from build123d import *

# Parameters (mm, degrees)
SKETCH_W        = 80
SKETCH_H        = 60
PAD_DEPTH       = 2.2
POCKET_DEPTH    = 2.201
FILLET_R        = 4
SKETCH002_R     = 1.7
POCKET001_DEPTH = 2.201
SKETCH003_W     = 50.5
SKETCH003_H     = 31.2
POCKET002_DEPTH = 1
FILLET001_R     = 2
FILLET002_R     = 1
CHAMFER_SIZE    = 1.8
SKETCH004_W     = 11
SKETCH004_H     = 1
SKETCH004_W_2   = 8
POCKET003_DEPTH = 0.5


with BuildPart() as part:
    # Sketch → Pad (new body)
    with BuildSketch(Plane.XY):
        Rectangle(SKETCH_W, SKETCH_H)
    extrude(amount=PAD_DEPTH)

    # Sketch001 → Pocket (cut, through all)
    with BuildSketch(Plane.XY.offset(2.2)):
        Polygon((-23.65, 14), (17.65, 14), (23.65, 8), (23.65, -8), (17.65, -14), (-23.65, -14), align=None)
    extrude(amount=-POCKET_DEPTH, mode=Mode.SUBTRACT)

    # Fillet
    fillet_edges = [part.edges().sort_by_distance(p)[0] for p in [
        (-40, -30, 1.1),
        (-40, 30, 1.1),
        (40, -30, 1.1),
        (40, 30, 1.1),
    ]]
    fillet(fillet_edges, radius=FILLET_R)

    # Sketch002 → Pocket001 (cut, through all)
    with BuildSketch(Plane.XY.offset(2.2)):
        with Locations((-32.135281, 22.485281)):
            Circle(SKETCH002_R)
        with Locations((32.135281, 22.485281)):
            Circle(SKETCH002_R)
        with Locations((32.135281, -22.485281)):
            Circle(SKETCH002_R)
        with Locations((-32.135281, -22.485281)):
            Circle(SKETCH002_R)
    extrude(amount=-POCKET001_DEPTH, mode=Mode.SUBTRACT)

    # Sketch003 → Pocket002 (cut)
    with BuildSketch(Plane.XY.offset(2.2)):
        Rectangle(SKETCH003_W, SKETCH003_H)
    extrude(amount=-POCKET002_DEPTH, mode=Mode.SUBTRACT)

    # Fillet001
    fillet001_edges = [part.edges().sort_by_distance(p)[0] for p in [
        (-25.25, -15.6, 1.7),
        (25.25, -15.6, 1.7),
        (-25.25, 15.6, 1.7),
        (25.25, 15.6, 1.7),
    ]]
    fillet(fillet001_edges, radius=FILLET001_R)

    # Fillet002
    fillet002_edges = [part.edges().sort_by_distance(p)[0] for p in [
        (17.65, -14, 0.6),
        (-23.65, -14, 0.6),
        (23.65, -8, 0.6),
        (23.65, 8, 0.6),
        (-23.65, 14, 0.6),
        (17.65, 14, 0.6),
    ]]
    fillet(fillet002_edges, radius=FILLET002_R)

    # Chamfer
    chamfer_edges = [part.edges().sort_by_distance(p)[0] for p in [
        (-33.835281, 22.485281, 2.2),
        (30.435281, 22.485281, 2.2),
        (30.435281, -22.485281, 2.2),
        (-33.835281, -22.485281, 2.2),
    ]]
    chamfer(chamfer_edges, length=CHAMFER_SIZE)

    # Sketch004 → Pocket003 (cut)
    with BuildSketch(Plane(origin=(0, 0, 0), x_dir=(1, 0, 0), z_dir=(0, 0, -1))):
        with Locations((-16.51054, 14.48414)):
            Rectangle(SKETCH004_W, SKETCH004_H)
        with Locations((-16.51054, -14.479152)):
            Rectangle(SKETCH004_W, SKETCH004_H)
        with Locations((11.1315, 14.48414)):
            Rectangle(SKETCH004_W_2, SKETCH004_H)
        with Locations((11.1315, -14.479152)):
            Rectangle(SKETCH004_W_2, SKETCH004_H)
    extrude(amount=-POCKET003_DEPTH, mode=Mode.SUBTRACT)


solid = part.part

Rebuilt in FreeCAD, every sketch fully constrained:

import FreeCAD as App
import Part
import Sketcher

V = App.Vector


def edges_at(feature, points):
    """Names of the edges that pass closest to the given points."""
    edges = feature.Shape.Edges
    near = lambda p: min(range(len(edges)), key=lambda i: edges[i].distToShape(Part.Vertex(*p))[0])
    return sorted({f"Edge{near(p) + 1}" for p in points})

doc = App.newDocument("Part")
params = doc.addObject("Spreadsheet::Sheet", "Params")
for row, (alias, value) in enumerate([
    ("sketch1_width", "80 mm"),
    ("sketch1_height", "60 mm"),
    ("pad1_length", "2.2 mm"),
    ("sketch2_height", "28 mm"),
    ("sketch2_height2", "16 mm"),
    ("sketch2_width", "41.3 mm"),
    ("fillet_radius", "4 mm"),
    ("sketch3_diameter", "3.4 mm"),
    ("sketch4_width", "50.5 mm"),
    ("sketch4_height", "31.2 mm"),
    ("pocket3_length", "1 mm"),
    ("fillet2_radius", "2 mm"),
    ("fillet3_radius", "1 mm"),
    ("chamfer_size", "1.8 mm"),
    ("sketch5_width", "11 mm"),
    ("sketch5_width2", "8 mm"),
    ("sketch5_height", "1 mm"),
    ("pocket4_length", "0.5 mm"),
], start=1):
    params.set(f"A{row}", alias)
    params.set(f"B{row}", "=" + value)
    params.setAlias(f"B{row}", alias)

body = doc.addObject("PartDesign::Body", "Body")

sketch1 = doc.addObject("Sketcher::SketchObject", "Sketch")
body.addObject(sketch1)
sketch1.AttachmentSupport = (doc.XY_Plane, [""])
sketch1.MapMode = "FlatFace"
sketch1.addGeometry([
    Part.LineSegment(V(-40, 30, 0), V(-40, -30, 0)),
    Part.LineSegment(V(-40, -30, 0), V(40, -30, 0)),
    Part.LineSegment(V(40, -30, 0), V(40, 30, 0)),
    Part.LineSegment(V(40, 30, 0), V(-40, 30, 0)),
], False)
sketch1.addConstraint([
    Sketcher.Constraint("Coincident", 0, 2, 1, 1),
    Sketcher.Constraint("Coincident", 1, 2, 2, 1),
    Sketcher.Constraint("Coincident", 2, 2, 3, 1),
    Sketcher.Constraint("Coincident", 3, 2, 0, 1),
    Sketcher.Constraint("Vertical", 0),
    Sketcher.Constraint("Horizontal", 1),
    Sketcher.Constraint("Vertical", 2),
    Sketcher.Constraint("Horizontal", 3),
    Sketcher.Constraint("Symmetric", 0, 2, 2, 2, -1, 1),
    Sketcher.Constraint("DistanceX", 1, 1, 1, 2, 80.0),
    Sketcher.Constraint("DistanceY", 0, 2, 0, 1, 60.0),
])
sketch1.setExpression("Constraints[9]", "Params.sketch1_width")
sketch1.setExpression("Constraints[10]", "Params.sketch1_height")
pad1 = doc.addObject("PartDesign::Pad", "Pad")
body.addObject(pad1)
pad1.Profile = sketch1
pad1.setExpression("Length", "Params.pad1_length")

sketch2 = doc.addObject("Sketcher::SketchObject", "Sketch001")
body.addObject(sketch2)
sketch2.AttachmentSupport = (doc.XY_Plane, [""])
sketch2.MapMode = "FlatFace"
sketch2.AttachmentOffset = App.Placement(V(0, 0, 2.2), App.Rotation())
sketch2.addGeometry([
    Part.LineSegment(V(18, 14, 0), V(-24, 14, 0)),
    Part.LineSegment(V(-24, 14, 0), V(-24, -14, 0)),
    Part.LineSegment(V(-24, -14, 0), V(18, -14, 0)),
    Part.LineSegment(V(18, -14, 0), V(24, -8, 0)),
    Part.LineSegment(V(24, -8, 0), V(24, 8, 0)),
    Part.LineSegment(V(24, 8, 0), V(18, 14, 0)),
], False)
sketch2.addConstraint([
    Sketcher.Constraint("Coincident", 0, 2, 1, 1),
    Sketcher.Constraint("Coincident", 1, 2, 2, 1),
    Sketcher.Constraint("Coincident", 2, 2, 3, 1),
    Sketcher.Constraint("Coincident", 3, 2, 4, 1),
    Sketcher.Constraint("Coincident", 4, 2, 5, 1),
    Sketcher.Constraint("Coincident", 5, 2, 0, 1),
    Sketcher.Constraint("Horizontal", 0),
    Sketcher.Constraint("Vertical", 1),
    Sketcher.Constraint("Horizontal", 2),
    Sketcher.Constraint("Vertical", 4),
    Sketcher.Constraint("Symmetric", 2, 2, 5, 2, -1),
    Sketcher.Constraint("Perpendicular", 3, 5),
    Sketcher.Constraint("Equal", 3, 5),
    Sketcher.Constraint("DistanceY", 1, 2, 1, 1, 28.0),
    Sketcher.Constraint("DistanceY", 4, 1, 4, 2, 16.0),
    Sketcher.Constraint("DistanceX", 0, 2, 0, 1, 41.3),
    Sketcher.Constraint("DistanceX", 0, 2, -1, 1, 23.65),
])
sketch2.setExpression("Constraints[13]", "Params.sketch2_height")
sketch2.setExpression("Constraints[14]", "Params.sketch2_height2")
sketch2.setExpression("Constraints[15]", "Params.sketch2_width")
pocket1 = doc.addObject("PartDesign::Pocket", "Pocket")
body.addObject(pocket1)
pocket1.Profile = sketch2
pocket1.Type = "ThroughAll"
doc.recompute()

fillet = doc.addObject("PartDesign::Fillet", "Fillet")
body.addObject(fillet)
fillet.Base = (pocket1, edges_at(pocket1, [
    (-40, -30, 1.1),
    (-40, 30, 1.1),
    (40, -30, 1.1),
    (40, 30, 1.1),
]))
fillet.setExpression("Radius", "Params.fillet_radius")

sketch3 = doc.addObject("Sketcher::SketchObject", "Sketch002")
body.addObject(sketch3)
sketch3.AttachmentSupport = (doc.XY_Plane, [""])
sketch3.MapMode = "FlatFace"
sketch3.AttachmentOffset = App.Placement(V(0, 0, 2.2), App.Rotation())
sketch3.addGeometry([
    Part.Circle(V(-32.1, 22.5, 0), V(0, 0, 1), 1.7),
    Part.Circle(V(32.1, 22.5, 0), V(0, 0, 1), 1.7),
    Part.Circle(V(32.1, -22.5, 0), V(0, 0, 1), 1.7),
    Part.Circle(V(-32.1, -22.5, 0), V(0, 0, 1), 1.7),
], False)
sketch3.addConstraint([
    Sketcher.Constraint("Equal", 0, 1),
    Sketcher.Constraint("Equal", 1, 2),
    Sketcher.Constraint("Equal", 2, 3),
    Sketcher.Constraint("Symmetric", 0, 3, 2, 3, -1, 1),
    Sketcher.Constraint("Symmetric", 1, 3, 3, 3, -1, 1),
    Sketcher.Constraint("Symmetric", 0, 3, 1, 3, -2),
    Sketcher.Constraint("Diameter", 0, 3.4),
    Sketcher.Constraint("DistanceX", 0, 3, -1, 1, 32.135281),
    Sketcher.Constraint("DistanceY", -1, 1, 0, 3, 22.485281),
])
sketch3.setExpression("Constraints[6]", "Params.sketch3_diameter")
pocket2 = doc.addObject("PartDesign::Pocket", "Pocket001")
body.addObject(pocket2)
pocket2.Profile = sketch3
pocket2.Type = "ThroughAll"

sketch4 = doc.addObject("Sketcher::SketchObject", "Sketch003")
body.addObject(sketch4)
sketch4.AttachmentSupport = (doc.XY_Plane, [""])
sketch4.MapMode = "FlatFace"
sketch4.AttachmentOffset = App.Placement(V(0, 0, 2.2), App.Rotation())
sketch4.addGeometry([
    Part.LineSegment(V(-25, 16, 0), V(-25, -16, 0)),
    Part.LineSegment(V(-25, -16, 0), V(25, -16, 0)),
    Part.LineSegment(V(25, -16, 0), V(25, 16, 0)),
    Part.LineSegment(V(25, 16, 0), V(-25, 16, 0)),
], False)
sketch4.addConstraint([
    Sketcher.Constraint("Coincident", 0, 2, 1, 1),
    Sketcher.Constraint("Coincident", 1, 2, 2, 1),
    Sketcher.Constraint("Coincident", 2, 2, 3, 1),
    Sketcher.Constraint("Coincident", 3, 2, 0, 1),
    Sketcher.Constraint("Vertical", 0),
    Sketcher.Constraint("Horizontal", 1),
    Sketcher.Constraint("Vertical", 2),
    Sketcher.Constraint("Horizontal", 3),
    Sketcher.Constraint("Symmetric", 0, 2, 2, 2, -1, 1),
    Sketcher.Constraint("DistanceX", 1, 1, 1, 2, 50.5),
    Sketcher.Constraint("DistanceY", 0, 2, 0, 1, 31.2),
])
sketch4.setExpression("Constraints[9]", "Params.sketch4_width")
sketch4.setExpression("Constraints[10]", "Params.sketch4_height")
pocket3 = doc.addObject("PartDesign::Pocket", "Pocket002")
body.addObject(pocket3)
pocket3.Profile = sketch4
pocket3.setExpression("Length", "Params.pocket3_length")
doc.recompute()

fillet2 = doc.addObject("PartDesign::Fillet", "Fillet001")
body.addObject(fillet2)
fillet2.Base = (pocket3, edges_at(pocket3, [
    (-25.25, -15.6, 1.7),
    (25.25, -15.6, 1.7),
    (-25.25, 15.6, 1.7),
    (25.25, 15.6, 1.7),
]))
fillet2.setExpression("Radius", "Params.fillet2_radius")
doc.recompute()

fillet3 = doc.addObject("PartDesign::Fillet", "Fillet002")
body.addObject(fillet3)
fillet3.Base = (fillet2, edges_at(fillet2, [
    (17.65, -14, 0.6),
    (-23.65, -14, 0.6),
    (23.65, -8, 0.6),
    (23.65, 8, 0.6),
    (-23.65, 14, 0.6),
    (17.65, 14, 0.6),
]))
fillet3.setExpression("Radius", "Params.fillet3_radius")
doc.recompute()

chamfer = doc.addObject("PartDesign::Chamfer", "Chamfer")
body.addObject(chamfer)
chamfer.Base = (fillet3, edges_at(fillet3, [
    (-33.835, 22.485, 2.2),
    (30.435, 22.485, 2.2),
    (30.435, -22.485, 2.2),
    (-33.835, -22.485, 2.2),
]))
chamfer.setExpression("Size", "Params.chamfer_size")

sketch5 = doc.addObject("Sketcher::SketchObject", "Sketch004")
body.addObject(sketch5)
sketch5.AttachmentSupport = (doc.XY_Plane, [""])
sketch5.MapMode = "FlatFace"
sketch5.addGeometry([
    Part.LineSegment(V(-22, -15, 0), V(-22, -14, 0)),
    Part.LineSegment(V(-22, -14, 0), V(-11, -14, 0)),
    Part.LineSegment(V(-11, -14, 0), V(-11, -15, 0)),
    Part.LineSegment(V(-11, -15, 0), V(-22, -15, 0)),
    Part.LineSegment(V(-22, 14, 0), V(-22, 15, 0)),
    Part.LineSegment(V(-22, 15, 0), V(-11, 15, 0)),
    Part.LineSegment(V(-11, 15, 0), V(-11, 14, 0)),
    Part.LineSegment(V(-11, 14, 0), V(-22, 14, 0)),
    Part.LineSegment(V(7.1, -15, 0), V(7.1, -14, 0)),
    Part.LineSegment(V(7.1, -14, 0), V(15.1, -14, 0)),
    Part.LineSegment(V(15.1, -14, 0), V(15.1, -15, 0)),
    Part.LineSegment(V(15.1, -15, 0), V(7.1, -15, 0)),
    Part.LineSegment(V(7.1, 14, 0), V(7.1, 15, 0)),
    Part.LineSegment(V(7.1, 15, 0), V(15.1, 15, 0)),
    Part.LineSegment(V(15.1, 15, 0), V(15.1, 14, 0)),
    Part.LineSegment(V(15.1, 14, 0), V(7.1, 14, 0)),
], False)
sketch5.addConstraint([
    Sketcher.Constraint("Coincident", 0, 2, 1, 1),
    Sketcher.Constraint("Coincident", 1, 2, 2, 1),
    Sketcher.Constraint("Coincident", 2, 2, 3, 1),
    Sketcher.Constraint("Coincident", 3, 2, 0, 1),
    Sketcher.Constraint("Coincident", 4, 2, 5, 1),
    Sketcher.Constraint("Coincident", 5, 2, 6, 1),
    Sketcher.Constraint("Coincident", 6, 2, 7, 1),
    Sketcher.Constraint("Coincident", 7, 2, 4, 1),
    Sketcher.Constraint("Coincident", 8, 2, 9, 1),
    Sketcher.Constraint("Coincident", 9, 2, 10, 1),
    Sketcher.Constraint("Coincident", 10, 2, 11, 1),
    Sketcher.Constraint("Coincident", 11, 2, 8, 1),
    Sketcher.Constraint("Coincident", 12, 2, 13, 1),
    Sketcher.Constraint("Coincident", 13, 2, 14, 1),
    Sketcher.Constraint("Coincident", 14, 2, 15, 1),
    Sketcher.Constraint("Coincident", 15, 2, 12, 1),
    Sketcher.Constraint("Vertical", 0),
    Sketcher.Constraint("Horizontal", 1),
    Sketcher.Constraint("Vertical", 2),
    Sketcher.Constraint("Horizontal", 3),
    Sketcher.Constraint("Vertical", 4),
    Sketcher.Constraint("Horizontal", 5),
    Sketcher.Constraint("Vertical", 6),
    Sketcher.Constraint("Horizontal", 7),
    Sketcher.Constraint("Vertical", 8),
    Sketcher.Constraint("Horizontal", 9),
    Sketcher.Constraint("Vertical", 10),
    Sketcher.Constraint("Horizontal", 11),
    Sketcher.Constraint("Vertical", 12),
    Sketcher.Constraint("Horizontal", 13),
    Sketcher.Constraint("Vertical", 14),
    Sketcher.Constraint("Horizontal", 15),
    Sketcher.Constraint("Horizontal", 1, 2, 8, 2),
    Sketcher.Constraint("Horizontal", 3, 2, 10, 2),
    Sketcher.Constraint("Horizontal", 5, 2, 12, 2),
    Sketcher.Constraint("Horizontal", 7, 2, 14, 2),
    Sketcher.Constraint("Vertical", 3, 2, 4, 2),
    Sketcher.Constraint("Vertical", 2, 2, 5, 2),
    Sketcher.Constraint("Vertical", 11, 2, 12, 2),
    Sketcher.Constraint("Vertical", 10, 2, 13, 2),
    Sketcher.Constraint("Equal", 2, 4),
    Sketcher.Constraint("DistanceX", 1, 1, 1, 2, 11.0),
    Sketcher.Constraint("DistanceX", 9, 1, 9, 2, 8.0),
    Sketcher.Constraint("DistanceY", 0, 1, 0, 2, 1.0),
    Sketcher.Constraint("DistanceX", -1, 1, 8, 2, 7.1315),
    Sketcher.Constraint("DistanceX", 0, 2, -1, 1, 22.01054),
    Sketcher.Constraint("DistanceY", 0, 2, -1, 1, 13.98414),
    Sketcher.Constraint("DistanceY", -1, 1, 4, 2, 14.979152),
])
sketch5.setExpression("Constraints[41]", "Params.sketch5_width")
sketch5.setExpression("Constraints[42]", "Params.sketch5_width2")
sketch5.setExpression("Constraints[43]", "Params.sketch5_height")
pocket4 = doc.addObject("PartDesign::Pocket", "Pocket003")
body.addObject(pocket4)
pocket4.Profile = sketch5
pocket4.setExpression("Length", "Params.pocket4_length")
pocket4.Reversed = True

doc.recompute()
